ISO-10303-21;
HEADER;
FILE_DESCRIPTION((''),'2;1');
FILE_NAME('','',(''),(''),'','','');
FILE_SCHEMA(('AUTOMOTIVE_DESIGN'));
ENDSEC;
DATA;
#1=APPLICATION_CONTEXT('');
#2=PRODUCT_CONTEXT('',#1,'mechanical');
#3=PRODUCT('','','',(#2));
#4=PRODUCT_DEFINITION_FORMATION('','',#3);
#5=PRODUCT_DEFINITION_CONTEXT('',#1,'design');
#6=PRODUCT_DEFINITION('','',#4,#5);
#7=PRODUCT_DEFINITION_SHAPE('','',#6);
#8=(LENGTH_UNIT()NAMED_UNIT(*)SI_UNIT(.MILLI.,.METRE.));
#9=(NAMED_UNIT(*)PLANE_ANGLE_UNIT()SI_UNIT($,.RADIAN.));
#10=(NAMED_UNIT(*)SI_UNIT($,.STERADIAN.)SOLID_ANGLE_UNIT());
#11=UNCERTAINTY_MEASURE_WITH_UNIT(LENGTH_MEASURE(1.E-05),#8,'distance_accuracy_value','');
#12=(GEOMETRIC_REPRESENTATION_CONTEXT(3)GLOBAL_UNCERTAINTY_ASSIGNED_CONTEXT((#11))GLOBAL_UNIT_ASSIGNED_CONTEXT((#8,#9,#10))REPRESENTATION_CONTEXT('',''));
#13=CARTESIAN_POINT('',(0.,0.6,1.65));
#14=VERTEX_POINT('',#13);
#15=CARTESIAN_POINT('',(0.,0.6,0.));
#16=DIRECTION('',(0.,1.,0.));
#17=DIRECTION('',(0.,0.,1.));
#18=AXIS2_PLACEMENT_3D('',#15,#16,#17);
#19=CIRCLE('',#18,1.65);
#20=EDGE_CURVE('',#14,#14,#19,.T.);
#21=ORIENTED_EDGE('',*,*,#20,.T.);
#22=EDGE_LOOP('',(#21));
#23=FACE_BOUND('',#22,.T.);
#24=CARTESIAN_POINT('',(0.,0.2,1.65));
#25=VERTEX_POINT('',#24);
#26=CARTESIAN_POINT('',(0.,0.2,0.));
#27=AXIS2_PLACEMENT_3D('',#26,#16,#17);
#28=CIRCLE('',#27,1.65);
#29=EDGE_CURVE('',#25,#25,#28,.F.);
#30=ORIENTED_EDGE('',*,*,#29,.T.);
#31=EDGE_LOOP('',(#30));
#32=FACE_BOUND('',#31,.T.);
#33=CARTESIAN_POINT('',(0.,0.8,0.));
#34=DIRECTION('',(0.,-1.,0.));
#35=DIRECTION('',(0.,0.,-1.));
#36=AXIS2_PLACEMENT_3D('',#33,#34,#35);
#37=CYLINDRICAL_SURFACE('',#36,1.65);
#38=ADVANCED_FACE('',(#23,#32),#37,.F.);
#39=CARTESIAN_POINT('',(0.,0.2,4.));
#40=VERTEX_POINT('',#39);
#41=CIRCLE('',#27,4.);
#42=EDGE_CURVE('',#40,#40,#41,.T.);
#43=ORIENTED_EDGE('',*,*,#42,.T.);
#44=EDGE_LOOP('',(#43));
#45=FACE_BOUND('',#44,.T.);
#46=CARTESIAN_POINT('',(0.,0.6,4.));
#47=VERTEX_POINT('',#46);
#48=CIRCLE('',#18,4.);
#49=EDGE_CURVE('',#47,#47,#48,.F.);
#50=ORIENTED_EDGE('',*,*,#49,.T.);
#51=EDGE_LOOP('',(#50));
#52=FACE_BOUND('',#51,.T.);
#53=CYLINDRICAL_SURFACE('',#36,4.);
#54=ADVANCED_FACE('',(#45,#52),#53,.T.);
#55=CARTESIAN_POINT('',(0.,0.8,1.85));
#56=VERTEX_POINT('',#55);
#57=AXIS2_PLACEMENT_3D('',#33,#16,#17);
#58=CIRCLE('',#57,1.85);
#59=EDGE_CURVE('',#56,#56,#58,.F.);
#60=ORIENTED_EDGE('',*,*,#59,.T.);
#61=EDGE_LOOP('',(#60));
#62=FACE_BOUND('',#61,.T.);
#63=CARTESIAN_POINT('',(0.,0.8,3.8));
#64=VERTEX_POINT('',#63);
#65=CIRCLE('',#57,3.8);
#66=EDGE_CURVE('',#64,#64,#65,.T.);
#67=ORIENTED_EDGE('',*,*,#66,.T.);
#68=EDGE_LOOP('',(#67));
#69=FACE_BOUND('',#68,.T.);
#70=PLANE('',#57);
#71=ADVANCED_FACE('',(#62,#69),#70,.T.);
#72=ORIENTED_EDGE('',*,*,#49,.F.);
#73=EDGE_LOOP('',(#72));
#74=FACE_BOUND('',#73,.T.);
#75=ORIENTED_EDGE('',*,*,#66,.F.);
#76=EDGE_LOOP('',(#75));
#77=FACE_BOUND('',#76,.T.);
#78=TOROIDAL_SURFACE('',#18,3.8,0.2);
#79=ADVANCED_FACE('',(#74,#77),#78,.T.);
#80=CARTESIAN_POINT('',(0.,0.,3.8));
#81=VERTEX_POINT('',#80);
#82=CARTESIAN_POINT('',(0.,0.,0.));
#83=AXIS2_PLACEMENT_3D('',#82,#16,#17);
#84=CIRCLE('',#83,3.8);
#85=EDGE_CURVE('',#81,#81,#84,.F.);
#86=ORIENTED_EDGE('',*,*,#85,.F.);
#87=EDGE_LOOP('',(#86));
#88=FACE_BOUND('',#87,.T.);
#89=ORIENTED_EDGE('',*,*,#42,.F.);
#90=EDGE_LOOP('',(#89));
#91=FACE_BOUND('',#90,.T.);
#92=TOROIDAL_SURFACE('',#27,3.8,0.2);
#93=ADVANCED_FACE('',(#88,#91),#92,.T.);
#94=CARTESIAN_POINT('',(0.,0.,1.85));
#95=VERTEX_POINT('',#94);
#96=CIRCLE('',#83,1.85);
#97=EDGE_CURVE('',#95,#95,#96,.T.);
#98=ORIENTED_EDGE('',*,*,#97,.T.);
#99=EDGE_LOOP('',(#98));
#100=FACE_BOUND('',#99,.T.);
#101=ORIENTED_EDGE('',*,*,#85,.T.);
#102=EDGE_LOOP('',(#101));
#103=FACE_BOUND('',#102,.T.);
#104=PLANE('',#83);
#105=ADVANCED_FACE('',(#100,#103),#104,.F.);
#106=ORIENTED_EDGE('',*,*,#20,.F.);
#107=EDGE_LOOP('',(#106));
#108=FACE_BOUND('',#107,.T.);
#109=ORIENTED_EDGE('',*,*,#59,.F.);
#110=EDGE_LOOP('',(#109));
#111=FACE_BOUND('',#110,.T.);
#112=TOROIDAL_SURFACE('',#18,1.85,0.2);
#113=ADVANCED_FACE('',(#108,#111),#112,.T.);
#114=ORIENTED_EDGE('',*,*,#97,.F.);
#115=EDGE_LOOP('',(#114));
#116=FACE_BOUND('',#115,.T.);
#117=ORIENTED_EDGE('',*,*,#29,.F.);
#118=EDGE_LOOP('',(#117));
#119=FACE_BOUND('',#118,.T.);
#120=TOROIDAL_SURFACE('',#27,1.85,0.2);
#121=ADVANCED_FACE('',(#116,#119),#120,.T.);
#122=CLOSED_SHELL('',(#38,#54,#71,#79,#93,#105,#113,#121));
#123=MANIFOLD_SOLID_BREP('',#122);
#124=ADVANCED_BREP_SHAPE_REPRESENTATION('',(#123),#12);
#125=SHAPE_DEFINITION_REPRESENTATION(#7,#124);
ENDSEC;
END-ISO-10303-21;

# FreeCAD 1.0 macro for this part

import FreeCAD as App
import Part
import Sketcher
from FreeCAD import Vector


def edges_at(feature, points):
    """Names of the edges that pass closest to the given points."""
    edges = feature.Shape.Edges
    near = lambda p: min(range(len(edges)), key=lambda i: edges[i].distToShape(Part.Vertex(*p))[0])
    return sorted({f"Edge{near(p) + 1}" for p in points})

doc = App.newDocument("Part")
params = doc.addObject("Spreadsheet::Sheet", "Params")
for row, (alias, value) in enumerate([
    ("sketch1_diameter", "8 mm"),
    ("sketch1_diameter2", "3.3 mm"),
    ("pad1_length", "0.8 mm"),
    ("fillet_radius", "0.2 mm"),
], start=1):
    params.set(f"A{row}", alias)
    params.set(f"B{row}", "=" + value)
    params.setAlias(f"B{row}", alias)

body = doc.addObject("PartDesign::Body", "Body")

sketch1 = doc.addObject("Sketcher::SketchObject", "Sketch")
body.addObject(sketch1)
sketch1.AttachmentSupport = (doc.XZ_Plane, [""])
sketch1.MapMode = "FlatFace"
sketch1.addGeometry(Part.Circle(Vector(0, 0, 0), Vector(0, 0, 1), 4), False)
sketch1.addGeometry(Part.Circle(Vector(0, 0, 0), Vector(0, 0, 1), 1.6), False)
sketch1.addConstraint(Sketcher.Constraint("Coincident", 0, 3, -1, 1))
sketch1.addConstraint(Sketcher.Constraint("Coincident", 1, 3, -1, 1))
sketch1.addConstraint(Sketcher.Constraint("Diameter", 0, 8.0))
sketch1.addConstraint(Sketcher.Constraint("Diameter", 1, 3.3))
sketch1.setExpression("Constraints[2]", "Params.sketch1_diameter")
sketch1.setExpression("Constraints[3]", "Params.sketch1_diameter2")
pad1 = doc.addObject("PartDesign::Pad", "Pad")
body.addObject(pad1)
pad1.Profile = sketch1
pad1.setExpression("Length", "Params.pad1_length")
pad1.Reversed = True
doc.recompute()

fillet = doc.addObject("PartDesign::Fillet", "Fillet")
body.addObject(fillet)
fillet.Base = (pad1, edges_at(pad1, [
    (0, 0, -4),
    (0, 0.8, -4),
    (0, 0, -1.65),
    (0, 0.8, -1.65),
]))
fillet.setExpression("Radius", "Params.fillet_radius")

doc.recompute()
